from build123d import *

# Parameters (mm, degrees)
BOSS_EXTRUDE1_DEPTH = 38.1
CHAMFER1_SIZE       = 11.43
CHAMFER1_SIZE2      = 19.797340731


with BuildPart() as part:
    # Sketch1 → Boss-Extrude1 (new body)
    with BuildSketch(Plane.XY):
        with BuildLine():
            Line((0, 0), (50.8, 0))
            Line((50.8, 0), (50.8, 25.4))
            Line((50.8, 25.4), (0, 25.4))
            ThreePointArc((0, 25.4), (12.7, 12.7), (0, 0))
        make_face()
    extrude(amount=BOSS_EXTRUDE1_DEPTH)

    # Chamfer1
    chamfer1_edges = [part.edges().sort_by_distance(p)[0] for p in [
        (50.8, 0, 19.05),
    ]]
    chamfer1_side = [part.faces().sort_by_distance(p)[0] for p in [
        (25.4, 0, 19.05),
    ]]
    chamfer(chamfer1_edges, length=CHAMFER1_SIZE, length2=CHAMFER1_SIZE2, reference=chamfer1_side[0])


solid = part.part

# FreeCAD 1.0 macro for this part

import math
import FreeCAD as App
import Part
import Sketcher

V = App.Vector
Q = App.Units.Quantity


def edges_at(feature, points):
    """Names of the edges that pass closest to the given points."""
    edges = feature.Shape.Edges
    near = lambda p: min(range(len(edges)), key=lambda i: edges[i].distToShape(Part.Vertex(*p))[0])
    return sorted({f"Edge{near(p) + 1}" for p in points})

doc = App.newDocument("Part")
body = doc.addObject("PartDesign::Body", "Body")

# Sketch on XY plane
sketch1 = body.newObject("Sketcher::SketchObject", "Sketch")
sketch1.AttachmentSupport = (doc.getObject("XY_Plane"), [""])
sketch1.MapMode = "FlatFace"
sketch1.addGeometry(Part.LineSegment(V(0, 0, 0), V(51, 0, 0)), False)
sketch1.addGeometry(Part.LineSegment(V(51, 0, 0), V(51, 25, 0)), False)
sketch1.addGeometry(Part.LineSegment(V(51, 25, 0), V(0, 25, 0)), False)
sketch1.addGeometry(Part.ArcOfCircle(Part.Circle(V(0, 13, 0), V(0, 0, 1), 13), math.radians(-90), math.radians(90)), False)
sketch1.addConstraint(Sketcher.Constraint("Coincident", 0, 2, 1, 1))
sketch1.addConstraint(Sketcher.Constraint("Coincident", 1, 2, 2, 1))
sketch1.addConstraint(Sketcher.Constraint("Tangent", 2, 2, 3, 2))
sketch1.addConstraint(Sketcher.Constraint("Tangent", 3, 1, 0, 1))
sketch1.addConstraint(Sketcher.Constraint("Horizontal", 0))
sketch1.addConstraint(Sketcher.Constraint("Vertical", 1))
sketch1.addConstraint(Sketcher.Constraint("Horizontal", 2))
sketch1.addConstraint(Sketcher.Constraint("Coincident", 3, 1, -1, 1))
sketch1.addConstraint(Sketcher.Constraint("Radius", 3, Q("0.5 in")))
sketch1.addConstraint(Sketcher.Constraint("DistanceX", 0, 1, 0, 2, Q("2 in")))
pad1 = body.newObject("PartDesign::Pad", "Pad")
pad1.Profile = sketch1
pad1.Length = Q("1.5 in")
doc.recompute()

chamfer = body.newObject("PartDesign::Chamfer", "Chamfer")
chamfer.Base = (pad1, edges_at(pad1, [(50.8, 0, 19.05)]))
chamfer.ChamferType = "Two distances"
chamfer.Size = Q("0.45 in")
chamfer.Size2 = 19.797341

doc.recompute()
